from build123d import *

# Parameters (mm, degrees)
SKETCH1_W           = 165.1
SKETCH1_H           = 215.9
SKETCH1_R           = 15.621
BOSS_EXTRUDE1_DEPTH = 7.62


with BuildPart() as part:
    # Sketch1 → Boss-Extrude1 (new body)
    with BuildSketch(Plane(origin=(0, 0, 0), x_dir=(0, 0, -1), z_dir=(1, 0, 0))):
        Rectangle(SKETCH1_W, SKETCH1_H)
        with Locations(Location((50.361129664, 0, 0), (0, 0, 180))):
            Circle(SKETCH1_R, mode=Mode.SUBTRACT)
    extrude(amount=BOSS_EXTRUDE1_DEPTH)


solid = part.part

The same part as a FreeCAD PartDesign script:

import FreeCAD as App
import Part
import Sketcher
Q = App.Units.Quantity


def add_polygon(sketch, points):
    """Adds a closed chain of lines whose ends are joined by coincident constraints."""
    first, n = sketch.GeometryCount, len(points)
    for a, b in zip(points, points[1:] + points[:1]):
        sketch.addGeometry(Part.LineSegment(App.Vector(*a, 0), App.Vector(*b, 0)), False)
    for i in range(n):
        sketch.addConstraint(Sketcher.Constraint("Coincident", first + i, 2, first + (i + 1) % n, 1))

doc = App.newDocument("Part")
body = doc.addObject("PartDesign::Body", "Body")

# Sketch on YZ plane
sketch1 = doc.addObject("Sketcher::SketchObject", "Sketch")
body.addObject(sketch1)
sketch1.AttachmentSupport = (doc.YZ_Plane, [""])
sketch1.MapMode = "FlatFace"
add_polygon(sketch1, [(108, 83), (-108, 83), (-108, -83), (108, -83)])  # lines 0-3
sketch1.addGeometry(Part.Circle(App.Vector(0, -50, 0), App.Vector(0, 0, 1), 16), False)  # 4
sketch1.addConstraint([
    Sketcher.Constraint("Horizontal", 0),
    Sketcher.Constraint("Vertical", 1),
    Sketcher.Constraint("Horizontal", 2),
    Sketcher.Constraint("Vertical", 3),
    Sketcher.Constraint("Symmetric", 0, 2, 2, 2, -1, 1),
    Sketcher.Constraint("PointOnObject", 4, 3, -2),
    Sketcher.Constraint("Diameter", 4, Q("1.23 in")),
    Sketcher.Constraint("DistanceX", 0, 2, 0, 1, Q("8.5 in")),
    Sketcher.Constraint("DistanceY", 1, 2, 1, 1, Q("6.5 in")),
    Sketcher.Constraint("DistanceY", 4, 3, -1, 1, Q("50.36113 mm")),
])
pad1 = doc.addObject("PartDesign::Pad", "Pad")
body.addObject(pad1)
pad1.Profile = sketch1
pad1.Length = Q("0.3 in")

doc.recompute()
